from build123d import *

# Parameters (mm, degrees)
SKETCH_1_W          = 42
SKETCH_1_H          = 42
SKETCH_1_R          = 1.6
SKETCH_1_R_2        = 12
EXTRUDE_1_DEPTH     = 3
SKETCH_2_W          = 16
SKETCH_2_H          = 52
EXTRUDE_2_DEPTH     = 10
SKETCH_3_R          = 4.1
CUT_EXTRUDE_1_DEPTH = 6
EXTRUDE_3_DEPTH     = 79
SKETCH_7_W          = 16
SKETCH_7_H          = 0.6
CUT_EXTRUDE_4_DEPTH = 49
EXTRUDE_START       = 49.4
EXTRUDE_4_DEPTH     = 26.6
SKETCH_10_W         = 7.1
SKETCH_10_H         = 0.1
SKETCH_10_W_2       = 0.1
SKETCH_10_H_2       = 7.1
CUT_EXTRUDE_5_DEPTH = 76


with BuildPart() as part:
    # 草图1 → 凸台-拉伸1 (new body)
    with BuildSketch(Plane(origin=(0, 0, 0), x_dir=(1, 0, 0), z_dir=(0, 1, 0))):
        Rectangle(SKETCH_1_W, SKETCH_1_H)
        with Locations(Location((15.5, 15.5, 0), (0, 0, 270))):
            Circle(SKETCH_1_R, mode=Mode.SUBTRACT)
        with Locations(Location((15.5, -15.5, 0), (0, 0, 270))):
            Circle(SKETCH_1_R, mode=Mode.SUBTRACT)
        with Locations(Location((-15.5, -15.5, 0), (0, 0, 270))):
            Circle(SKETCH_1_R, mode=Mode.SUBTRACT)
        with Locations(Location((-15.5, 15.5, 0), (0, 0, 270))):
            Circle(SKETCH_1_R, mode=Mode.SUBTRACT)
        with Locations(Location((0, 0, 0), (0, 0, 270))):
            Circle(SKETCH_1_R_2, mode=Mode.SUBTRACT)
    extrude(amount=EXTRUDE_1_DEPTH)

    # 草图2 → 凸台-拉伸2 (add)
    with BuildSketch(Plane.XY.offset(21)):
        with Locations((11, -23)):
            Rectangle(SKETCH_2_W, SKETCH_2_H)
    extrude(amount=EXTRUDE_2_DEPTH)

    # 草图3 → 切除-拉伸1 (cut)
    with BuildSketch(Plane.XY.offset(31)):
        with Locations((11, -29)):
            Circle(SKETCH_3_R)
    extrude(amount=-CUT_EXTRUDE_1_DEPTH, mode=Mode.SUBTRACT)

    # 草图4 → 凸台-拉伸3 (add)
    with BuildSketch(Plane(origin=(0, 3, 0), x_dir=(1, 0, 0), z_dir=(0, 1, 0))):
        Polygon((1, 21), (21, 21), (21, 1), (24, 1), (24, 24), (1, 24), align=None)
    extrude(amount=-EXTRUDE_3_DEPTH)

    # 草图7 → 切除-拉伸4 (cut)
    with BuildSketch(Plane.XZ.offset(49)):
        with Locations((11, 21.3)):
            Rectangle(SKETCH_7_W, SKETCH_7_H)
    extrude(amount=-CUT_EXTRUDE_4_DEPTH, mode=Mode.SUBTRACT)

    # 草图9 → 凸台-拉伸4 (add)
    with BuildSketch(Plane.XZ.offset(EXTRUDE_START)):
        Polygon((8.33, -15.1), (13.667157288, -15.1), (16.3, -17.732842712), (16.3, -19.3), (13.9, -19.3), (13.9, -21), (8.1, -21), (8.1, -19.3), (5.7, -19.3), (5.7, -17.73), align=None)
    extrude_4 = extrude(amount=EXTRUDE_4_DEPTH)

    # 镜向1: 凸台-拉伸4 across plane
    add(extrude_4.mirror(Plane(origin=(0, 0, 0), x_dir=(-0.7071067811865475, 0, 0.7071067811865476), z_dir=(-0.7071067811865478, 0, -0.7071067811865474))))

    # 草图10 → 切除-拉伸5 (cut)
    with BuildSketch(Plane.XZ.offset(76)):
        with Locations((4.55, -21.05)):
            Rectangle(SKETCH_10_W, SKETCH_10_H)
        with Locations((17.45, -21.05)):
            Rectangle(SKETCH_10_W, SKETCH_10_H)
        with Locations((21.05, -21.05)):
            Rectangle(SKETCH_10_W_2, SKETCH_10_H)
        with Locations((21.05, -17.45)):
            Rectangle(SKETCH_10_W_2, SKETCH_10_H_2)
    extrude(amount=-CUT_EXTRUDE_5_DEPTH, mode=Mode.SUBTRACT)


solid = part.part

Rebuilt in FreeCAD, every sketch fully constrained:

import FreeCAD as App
import Part
import Sketcher

V = App.Vector
Q = App.Units.Quantity

doc = App.newDocument("Part")
body = doc.addObject("PartDesign::Body", "Body")

# Sketch on XZ plane
sketch1 = body.newObject("Sketcher::SketchObject", "Sketch")
sketch1.AttachmentSupport = (doc.getObject("XZ_Plane"), [""])
sketch1.MapMode = "FlatFace"
sketch1.addGeometry([
    Part.LineSegment(V(-21, -21, 0), V(-21, 21, 0)),  # 0
    Part.LineSegment(V(-21, 21, 0), V(21, 21, 0)),  # 1
    Part.LineSegment(V(21, 21, 0), V(21, -21, 0)),  # 2
    Part.LineSegment(V(21, -21, 0), V(-21, -21, 0)),  # 3
    Part.Circle(V(-15.5, 15.5, 0), V(0, 0, 1), 1.6),  # 4
    Part.Circle(V(15.5, 15.5, 0), V(0, 0, 1), 1.6),  # 5
    Part.Circle(V(-15.5, -15.5, 0), V(0, 0, 1), 1.6),  # 6
    Part.Circle(V(0, 0, 0), V(0, 0, 1), 12),  # 7
    Part.Circle(V(15.5, -15.5, 0), V(0, 0, 1), 1.6),  # 8
], False)
sketch1.addConstraint([
    Sketcher.Constraint("Coincident", 0, 2, 1, 1),
    Sketcher.Constraint("Coincident", 1, 2, 2, 1),
    Sketcher.Constraint("Coincident", 2, 2, 3, 1),
    Sketcher.Constraint("Coincident", 3, 2, 0, 1),
    Sketcher.Constraint("Vertical", 0),
    Sketcher.Constraint("Horizontal", 1),
    Sketcher.Constraint("Vertical", 2),
    Sketcher.Constraint("Horizontal", 3),
    Sketcher.Constraint("Coincident", 7, 3, -1, 1),
    Sketcher.Constraint("Equal", 4, 5),
    Sketcher.Constraint("Equal", 5, 6),
    Sketcher.Constraint("Equal", 6, 8),
    Sketcher.Constraint("Symmetric", 5, 3, 6, 3, -1, 1),
    Sketcher.Constraint("Symmetric", 4, 3, 8, 3, -1, 1),
    Sketcher.Constraint("Symmetric", 0, 2, 2, 2, -1, 1),
    Sketcher.Constraint("Symmetric", 4, 3, 5, 3, -2),
    Sketcher.Constraint("Equal", 3, 0),
    Sketcher.Constraint("Diameter", 7, 24.0),
    Sketcher.Constraint("Diameter", 4, 3.2),
    Sketcher.Constraint("DistanceX", 1, 1, 1, 2, 42.0),
    Sketcher.Constraint("DistanceX", 4, 3, 5, 3, 31.0),
    Sketcher.Constraint("DistanceY", 6, 3, 4, 3, 31.0),
])
pad1 = body.newObject("PartDesign::Pad", "Pad")
pad1.Profile = sketch1
pad1.Length = 3
pad1.Reversed = True

# Sketch on XY plane
sketch2 = body.newObject("Sketcher::SketchObject", "Sketch001")
sketch2.AttachmentSupport = (doc.getObject("XY_Plane"), [""])
sketch2.MapMode = "FlatFace"
sketch2.AttachmentOffset = App.Placement(V(0, 0, 21), App.Rotation())
sketch2.addGeometry([
    Part.LineSegment(V(3, 3, 0), V(3, -49, 0)),
    Part.LineSegment(V(3, -49, 0), V(19, -49, 0)),
    Part.LineSegment(V(19, -49, 0), V(19, 3, 0)),
    Part.LineSegment(V(19, 3, 0), V(3, 3, 0)),
], False)
sketch2.addConstraint([
    Sketcher.Constraint("Coincident", 0, 2, 1, 1),
    Sketcher.Constraint("Coincident", 1, 2, 2, 1),
    Sketcher.Constraint("Coincident", 2, 2, 3, 1),
    Sketcher.Constraint("Coincident", 3, 2, 0, 1),
    Sketcher.Constraint("Vertical", 0),
    Sketcher.Constraint("Horizontal", 1),
    Sketcher.Constraint("Vertical", 2),
    Sketcher.Constraint("Horizontal", 3),
    Sketcher.Constraint("DistanceX", 1, 1, 1, 2, 16.0),
    Sketcher.Constraint("DistanceY", 0, 2, 0, 1, 52.0),
    Sketcher.Constraint("DistanceX", -1, 1, 0, 2, 3.0),
    Sketcher.Constraint("DistanceY", 0, 2, -1, 1, 49.0),
])
pad2 = body.newObject("PartDesign::Pad", "Pad001")
pad2.Profile = sketch2
pad2.Length = 10

# Sketch on XY plane
sketch3 = body.newObject("Sketcher::SketchObject", "Sketch002")
sketch3.AttachmentSupport = (doc.getObject("XY_Plane"), [""])
sketch3.MapMode = "FlatFace"
sketch3.AttachmentOffset = App.Placement(V(0, 0, 31), App.Rotation())
sketch3.addGeometry(Part.Circle(V(11, -29, 0), V(0, 0, 1), 4.1), False)
sketch3.addConstraint([
    Sketcher.Constraint("Diameter", 0, 8.2),
    Sketcher.Constraint("DistanceX", -1, 1, 0, 3, 11.0),
    Sketcher.Constraint("DistanceY", 0, 3, -1, 1, 29.0),
])
pocket1 = body.newObject("PartDesign::Pocket", "Pocket")
pocket1.Profile = sketch3
pocket1.Length = 6

# Sketch on XZ plane
sketch4 = body.newObject("Sketcher::SketchObject", "Sketch003")
sketch4.AttachmentSupport = (doc.getObject("XZ_Plane"), [""])
sketch4.MapMode = "FlatFace"
sketch4.AttachmentOffset = App.Placement(V(0, 0, -3), App.Rotation())
sketch4.addGeometry([
    Part.LineSegment(V(1, -21, 0), V(21, -21, 0)),  # 0
    Part.LineSegment(V(21, -21, 0), V(21, -1, 0)),  # 1
    Part.LineSegment(V(21, -1, 0), V(24, -1, 0)),  # 2
    Part.LineSegment(V(24, -1, 0), V(24, -24, 0)),  # 3
    Part.LineSegment(V(24, -24, 0), V(1, -24, 0)),  # 4
    Part.LineSegment(V(1, -24, 0), V(1, -21, 0)),  # 5
], False)
sketch4.addConstraint([
    Sketcher.Constraint("Coincident", 0, 2, 1, 1),
    Sketcher.Constraint("Coincident", 1, 2, 2, 1),
    Sketcher.Constraint("Coincident", 2, 2, 3, 1),
    Sketcher.Constraint("Coincident", 3, 2, 4, 1),
    Sketcher.Constraint("Coincident", 4, 2, 5, 1),
    Sketcher.Constraint("Coincident", 5, 2, 0, 1),
    Sketcher.Constraint("Horizontal", 0),
    Sketcher.Constraint("Vertical", 1),
    Sketcher.Constraint("Horizontal", 2),
    Sketcher.Constraint("Vertical", 3),
    Sketcher.Constraint("Horizontal", 4),
    Sketcher.Constraint("Vertical", 5),
    Sketcher.Constraint("Equal", 0, 1),
    Sketcher.Constraint("Equal", 4, 3),
    Sketcher.Constraint("DistanceX", 0, 1, 0, 2, 20.0),
    Sketcher.Constraint("DistanceX", 2, 1, 2, 2, 3.0),
    Sketcher.Constraint("DistanceX", -1, 1, 0, 2, 21.0),
    Sketcher.Constraint("DistanceY", 0, 2, -1, 1, 21.0),
])
pad3 = body.newObject("PartDesign::Pad", "Pad002")
pad3.Profile = sketch4
pad3.Length = 79

# Sketch on XZ plane
sketch5 = body.newObject("Sketcher::SketchObject", "Sketch004")
sketch5.AttachmentSupport = (doc.getObject("XZ_Plane"), [""])
sketch5.MapMode = "FlatFace"
sketch5.AttachmentOffset = App.Placement(V(0, 0, 49), App.Rotation())
sketch5.addGeometry([
    Part.LineSegment(V(3, 21.6, 0), V(3, 21, 0)),
    Part.LineSegment(V(3, 21, 0), V(19, 21, 0)),
    Part.LineSegment(V(19, 21, 0), V(19, 21.6, 0)),
    Part.LineSegment(V(19, 21.6, 0), V(3, 21.6, 0)),
], False)
sketch5.addConstraint([
    Sketcher.Constraint("Coincident", 0, 2, 1, 1),
    Sketcher.Constraint("Coincident", 1, 2, 2, 1),
    Sketcher.Constraint("Coincident", 2, 2, 3, 1),
    Sketcher.Constraint("Coincident", 3, 2, 0, 1),
    Sketcher.Constraint("Vertical", 0),
    Sketcher.Constraint("Horizontal", 1),
    Sketcher.Constraint("Vertical", 2),
    Sketcher.Constraint("Horizontal", 3),
    Sketcher.Constraint("DistanceX", 1, 1, 1, 2, 16.0),
    Sketcher.Constraint("DistanceY", 0, 2, 0, 1, 0.6),
    Sketcher.Constraint("DistanceX", -1, 1, 0, 2, 3.0),
    Sketcher.Constraint("DistanceY", -1, 1, 0, 2, 21.0),
])
pocket2 = body.newObject("PartDesign::Pocket", "Pocket001")
pocket2.Profile = sketch5
pocket2.Length = 49

# Sketch on XZ plane
sketch6 = body.newObject("Sketcher::SketchObject", "Sketch005")
sketch6.AttachmentSupport = (doc.getObject("XZ_Plane"), [""])
sketch6.MapMode = "FlatFace"
sketch6.AttachmentOffset = App.Placement(V(0, 0, 49.4), App.Rotation())
sketch6.addGeometry([
    Part.LineSegment(V(13.7, -15.1, 0), V(8.3, -15.1, 0)),  # 0
    Part.LineSegment(V(8.3, -15.1, 0), V(5.7, -17.7, 0)),  # 1
    Part.LineSegment(V(5.7, -17.7, 0), V(5.7, -19.3, 0)),  # 2
    Part.LineSegment(V(5.7, -19.3, 0), V(8.1, -19.3, 0)),  # 3
    Part.LineSegment(V(8.1, -19.3, 0), V(8.1, -21, 0)),  # 4
    Part.LineSegment(V(8.1, -21, 0), V(13.9, -21, 0)),  # 5
    Part.LineSegment(V(13.9, -21, 0), V(13.9, -19.3, 0)),  # 6
    Part.LineSegment(V(13.9, -19.3, 0), V(16.3, -19.3, 0)),  # 7
    Part.LineSegment(V(16.3, -19.3, 0), V(16.3, -17.7, 0)),  # 8
    Part.LineSegment(V(16.3, -17.7, 0), V(13.7, -15.1, 0)),  # 9
], False)
sketch6.addConstraint([
    Sketcher.Constraint("Coincident", 0, 2, 1, 1),
    Sketcher.Constraint("Coincident", 1, 2, 2, 1),
    Sketcher.Constraint("Coincident", 2, 2, 3, 1),
    Sketcher.Constraint("Coincident", 3, 2, 4, 1),
    Sketcher.Constraint("Coincident", 4, 2, 5, 1),
    Sketcher.Constraint("Coincident", 5, 2, 6, 1),
    Sketcher.Constraint("Coincident", 6, 2, 7, 1),
    Sketcher.Constraint("Coincident", 7, 2, 8, 1),
    Sketcher.Constraint("Coincident", 8, 2, 9, 1),
    Sketcher.Constraint("Coincident", 9, 2, 0, 1),
    Sketcher.Constraint("Horizontal", 0),
    Sketcher.Constraint("Vertical", 2),
    Sketcher.Constraint("Horizontal", 3),
    Sketcher.Constraint("Vertical", 4),
    Sketcher.Constraint("Horizontal", 5),
    Sketcher.Constraint("Vertical", 6),
    Sketcher.Constraint("Horizontal", 7),
    Sketcher.Constraint("Vertical", 8),
    Sketcher.Constraint("Perpendicular", 1, 9),
    Sketcher.Constraint("Horizontal", 3, 2, 6, 2),
    Sketcher.Constraint("Equal", 3, 7),
    Sketcher.Constraint("Angle", 1, Q("-135 deg")),
    Sketcher.Constraint("DistanceX", 3, 1, 3, 2, 2.4),
    Sketcher.Constraint("DistanceX", 5, 1, 5, 2, 5.8),
    Sketcher.Constraint("DistanceY", 4, 2, 4, 1, 1.7),
    Sketcher.Constraint("DistanceY", 4, 2, -1, 1, 21.0),
    Sketcher.Constraint("DistanceY", 2, 2, 2, 1, 1.57),
    Sketcher.Constraint("DistanceY", 0, 2, -1, 1, 15.1),
    Sketcher.Constraint("DistanceX", -1, 1, 1, 2, 5.7),
    Sketcher.Constraint("Distance", 9, 3.723402),
])
pad4 = body.newObject("PartDesign::Pad", "Pad003")
pad4.Profile = sketch6
pad4.Length = 26.6
doc.recompute()

datumplane = body.newObject("PartDesign::Plane", "DatumPlane")
datumplane.Placement = App.Placement(V(0, 0, 0), App.Rotation(V(0.707106781, 0, -0.707106781), V(0, -1, 0), V(-0.707106781, 0, -0.707106781), "ZXY"))
mirrored = body.newObject("PartDesign::Mirrored", "Mirrored")
mirrored.Originals = [pad4]
mirrored.MirrorPlane = (datumplane, [""])
body.Tip = mirrored

# Sketch on XZ plane
sketch7 = body.newObject("Sketcher::SketchObject", "Sketch006")
sketch7.AttachmentSupport = (doc.getObject("XZ_Plane"), [""])
sketch7.MapMode = "FlatFace"
sketch7.AttachmentOffset = App.Placement(V(0, 0, 76), App.Rotation())
sketch7.addGeometry([
    Part.LineSegment(V(1, -21, 0), V(1, -21.1, 0)),  # 0
    Part.LineSegment(V(1, -21.1, 0), V(8.1, -21.1, 0)),  # 1
    Part.LineSegment(V(8.1, -21.1, 0), V(8.1, -21, 0)),  # 2
    Part.LineSegment(V(8.1, -21, 0), V(1, -21, 0)),  # 3
    Part.LineSegment(V(13.9, -21, 0), V(13.9, -21.1, 0)),  # 4
    Part.LineSegment(V(13.9, -21.1, 0), V(21.1, -21.1, 0)),  # 5
    Part.LineSegment(V(21.1, -21.1, 0), V(21.1, -13.9, 0)),  # 6
    Part.LineSegment(V(21.1, -13.9, 0), V(21, -13.9, 0)),  # 7
    Part.LineSegment(V(21, -13.9, 0), V(21, -21, 0)),  # 8
    Part.LineSegment(V(21, -21, 0), V(13.9, -21, 0)),  # 9
], False)
sketch7.addConstraint([
    Sketcher.Constraint("Coincident", 0, 2, 1, 1),
    Sketcher.Constraint("Coincident", 1, 2, 2, 1),
    Sketcher.Constraint("Coincident", 2, 2, 3, 1),
    Sketcher.Constraint("Coincident", 3, 2, 0, 1),
    Sketcher.Constraint("Coincident", 4, 2, 5, 1),
    Sketcher.Constraint("Coincident", 5, 2, 6, 1),
    Sketcher.Constraint("Coincident", 6, 2, 7, 1),
    Sketcher.Constraint("Coincident", 7, 2, 8, 1),
    Sketcher.Constraint("Coincident", 8, 2, 9, 1),
    Sketcher.Constraint("Coincident", 9, 2, 4, 1),
    Sketcher.Constraint("Vertical", 0),
    Sketcher.Constraint("Horizontal", 1),
    Sketcher.Constraint("Vertical", 2),
    Sketcher.Constraint("Horizontal", 3),
    Sketcher.Constraint("Vertical", 4),
    Sketcher.Constraint("Horizontal", 5),
    Sketcher.Constraint("Vertical", 6),
    Sketcher.Constraint("Horizontal", 7),
    Sketcher.Constraint("Vertical", 8),
    Sketcher.Constraint("Horizontal", 9),
    Sketcher.Constraint("Horizontal", 1, 2, 4, 2),
    Sketcher.Constraint("Horizontal", 3, 2, 8, 2),
    Sketcher.Constraint("Equal", 3, 9),
    Sketcher.Constraint("Equal", 7, 0),
    Sketcher.Constraint("Equal", 5, 6),
    Sketcher.Constraint("DistanceX", 1, 1, 1, 2, 7.1),
    Sketcher.Constraint("DistanceX", 5, 1, 5, 2, 7.2),
    Sketcher.Constraint("DistanceX", -1, 1, 0, 2, 1.0),
    Sketcher.Constraint("DistanceY", 2, 2, -1, 1, 21.0),
    Sketcher.Constraint("DistanceX", -1, 1, 7, 2, 21.0),
])
pocket3 = body.newObject("PartDesign::Pocket", "Pocket002")
pocket3.Profile = sketch7
pocket3.Length = 76

doc.recompute()
